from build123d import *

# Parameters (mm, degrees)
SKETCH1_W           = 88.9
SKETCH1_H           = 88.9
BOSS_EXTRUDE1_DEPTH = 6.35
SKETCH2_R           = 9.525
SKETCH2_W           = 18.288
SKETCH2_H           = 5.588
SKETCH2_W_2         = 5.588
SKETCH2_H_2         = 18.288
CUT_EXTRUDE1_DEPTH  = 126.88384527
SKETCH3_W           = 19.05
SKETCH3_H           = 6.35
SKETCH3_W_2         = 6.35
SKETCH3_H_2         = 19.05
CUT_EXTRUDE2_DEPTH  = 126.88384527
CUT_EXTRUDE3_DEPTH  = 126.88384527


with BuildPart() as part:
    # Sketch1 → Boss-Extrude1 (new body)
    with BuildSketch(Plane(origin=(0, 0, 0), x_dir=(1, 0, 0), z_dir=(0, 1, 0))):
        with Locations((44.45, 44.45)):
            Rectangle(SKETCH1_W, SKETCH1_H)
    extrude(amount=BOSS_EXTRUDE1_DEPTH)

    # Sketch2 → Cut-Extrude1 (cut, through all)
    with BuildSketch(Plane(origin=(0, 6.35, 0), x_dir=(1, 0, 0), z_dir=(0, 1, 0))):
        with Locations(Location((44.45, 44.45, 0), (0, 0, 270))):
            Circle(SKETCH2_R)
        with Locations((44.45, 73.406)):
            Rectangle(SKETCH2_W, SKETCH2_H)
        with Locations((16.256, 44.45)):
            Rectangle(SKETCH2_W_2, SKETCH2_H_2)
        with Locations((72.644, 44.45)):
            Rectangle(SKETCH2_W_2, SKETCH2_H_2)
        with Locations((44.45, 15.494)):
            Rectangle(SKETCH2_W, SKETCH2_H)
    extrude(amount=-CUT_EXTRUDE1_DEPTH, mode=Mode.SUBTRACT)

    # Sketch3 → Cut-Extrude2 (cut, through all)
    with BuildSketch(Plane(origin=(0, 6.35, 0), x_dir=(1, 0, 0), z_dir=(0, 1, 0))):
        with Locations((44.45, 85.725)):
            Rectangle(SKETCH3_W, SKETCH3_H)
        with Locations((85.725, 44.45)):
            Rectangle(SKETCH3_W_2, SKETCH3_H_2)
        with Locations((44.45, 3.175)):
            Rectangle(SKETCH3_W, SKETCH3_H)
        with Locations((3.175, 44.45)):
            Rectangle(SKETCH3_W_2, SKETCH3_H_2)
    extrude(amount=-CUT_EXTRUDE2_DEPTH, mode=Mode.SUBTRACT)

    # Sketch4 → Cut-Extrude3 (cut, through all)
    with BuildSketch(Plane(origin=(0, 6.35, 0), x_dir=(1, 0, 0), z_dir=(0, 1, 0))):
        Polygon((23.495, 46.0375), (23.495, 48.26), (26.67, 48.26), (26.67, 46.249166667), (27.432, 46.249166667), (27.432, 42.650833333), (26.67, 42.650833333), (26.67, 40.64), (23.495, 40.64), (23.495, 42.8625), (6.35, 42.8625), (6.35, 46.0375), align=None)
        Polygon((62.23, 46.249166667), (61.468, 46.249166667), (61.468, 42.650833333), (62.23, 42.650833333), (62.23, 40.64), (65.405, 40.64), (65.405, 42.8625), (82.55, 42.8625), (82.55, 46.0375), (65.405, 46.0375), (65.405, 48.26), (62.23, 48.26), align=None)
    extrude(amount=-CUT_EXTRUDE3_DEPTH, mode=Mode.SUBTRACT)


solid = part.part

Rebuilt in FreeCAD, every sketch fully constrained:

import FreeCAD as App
import Part
import Sketcher
from FreeCAD import Vector
Q = App.Units.Quantity


def add_polygon(sketch, points):
    """Adds a closed chain of lines whose ends are joined by coincident constraints."""
    first, n = sketch.GeometryCount, len(points)
    for a, b in zip(points, points[1:] + points[:1]):
        sketch.addGeometry(Part.LineSegment(App.Vector(*a, 0), App.Vector(*b, 0)), False)
    for i in range(n):
        sketch.addConstraint(Sketcher.Constraint("Coincident", first + i, 2, first + (i + 1) % n, 1))

doc = App.newDocument("Part")
body = doc.addObject("PartDesign::Body", "Body")

sketch1 = body.newObject("Sketcher::SketchObject", "Sketch")
sketch1.AttachmentSupport = (doc.getObject("XZ_Plane"), [""])
sketch1.MapMode = "FlatFace"
add_polygon(sketch1, [(0, -89), (0, 0), (89, 0), (89, -89)])
sketch1.addConstraint([
    Sketcher.Constraint("Vertical", 0),
    Sketcher.Constraint("Horizontal", 1),
    Sketcher.Constraint("Vertical", 2),
    Sketcher.Constraint("Horizontal", 3),
    Sketcher.Constraint("Coincident", 0, 2, -1, 1),
    Sketcher.Constraint("Equal", 3, 0),
    Sketcher.Constraint("DistanceX", 1, 1, 1, 2, Q("3.5 in")),
])
pad1 = body.newObject("PartDesign::Pad", "Pad")
pad1.Profile = sketch1
pad1.Length = Q("0.25 in")
pad1.Reversed = True

sketch2 = body.newObject("Sketcher::SketchObject", "Sketch001")
sketch2.AttachmentSupport = (doc.getObject("XZ_Plane"), [""])
sketch2.MapMode = "FlatFace"
sketch2.AttachmentOffset = App.Placement(Vector(0, 0, -0.25 * 25.4), App.Rotation())
sketch2.addGeometry(Part.Circle(Vector(44, -44, 0), Vector(0, 0, 1), 10), False)
add_polygon(sketch2, [(35, -76), (35, -71), (54, -71), (54, -76)])
add_polygon(sketch2, [(13, -54), (13, -35), (19, -35), (19, -54)])
add_polygon(sketch2, [(70, -54), (70, -35), (75, -35), (75, -54)])
add_polygon(sketch2, [(35, -18), (35, -13), (54, -13), (54, -18)])
sketch2.addConstraint([
    Sketcher.Constraint("Vertical", 1),
    Sketcher.Constraint("Horizontal", 2),
    Sketcher.Constraint("Vertical", 3),
    Sketcher.Constraint("Horizontal", 4),
    Sketcher.Constraint("Vertical", 5),
    Sketcher.Constraint("Horizontal", 6),
    Sketcher.Constraint("Vertical", 7),
    Sketcher.Constraint("Horizontal", 8),
    Sketcher.Constraint("Vertical", 9),
    Sketcher.Constraint("Horizontal", 10),
    Sketcher.Constraint("Vertical", 11),
    Sketcher.Constraint("Horizontal", 12),
    Sketcher.Constraint("Vertical", 13),
    Sketcher.Constraint("Horizontal", 14),
    Sketcher.Constraint("Vertical", 15),
    Sketcher.Constraint("Horizontal", 16),
    Sketcher.Constraint("Horizontal", 6, 2, 9, 2),
    Sketcher.Constraint("Horizontal", 8, 2, 11, 2),
    Sketcher.Constraint("Vertical", 4, 2, 13, 2),
    Sketcher.Constraint("Vertical", 3, 2, 14, 2),
    Sketcher.Constraint("Equal", 8, 10),
    Sketcher.Constraint("Equal", 12, 1),
    Sketcher.Constraint("Equal", 16, 5),
    Sketcher.Constraint("Equal", 3, 13),
    Sketcher.Constraint("Diameter", 0, Q("0.75 in")),
    Sketcher.Constraint("DistanceY", 3, 2, -1, 1, Q("3 in")),
    Sketcher.Constraint("DistanceX", 6, 2, 0, 3, Q("1 in")),
    Sketcher.Constraint("DistanceX", 0, 3, 9, 2, Q("1 in")),
    Sketcher.Constraint("DistanceX", 2, 1, 2, 2, Q("0.72 in")),
    Sketcher.Constraint("DistanceX", 6, 1, 6, 2, Q("0.22 in")),
    Sketcher.Constraint("DistanceY", 13, 2, -1, 1, Q("0.5 in")),
    Sketcher.Constraint("DistanceX", -1, 1, 0, 3, Q("1.75 in")),
    Sketcher.Constraint("DistanceY", 0, 3, -1, 1, Q("1.75 in")),
    Sketcher.Constraint("DistanceX", -1, 1, 1, 2, Q("1.39 in")),
    Sketcher.Constraint("DistanceY", 5, 2, -1, 1, Q("1.39 in")),
])
pocket1 = body.newObject("PartDesign::Pocket", "Pocket")
pocket1.Profile = sketch2
pocket1.Type = "ThroughAll"
pocket1.Reversed = True

sketch3 = body.newObject("Sketcher::SketchObject", "Sketch002")
sketch3.AttachmentSupport = (doc.getObject("XZ_Plane"), [""])
sketch3.MapMode = "FlatFace"
sketch3.AttachmentOffset = App.Placement(Vector(0, 0, -0.25 * 25.4), App.Rotation())
add_polygon(sketch3, [(35, -89), (35, -83), (54, -83), (54, -89)])
add_polygon(sketch3, [(83, -54), (83, -35), (89, -35), (89, -54)])
add_polygon(sketch3, [(35, -6), (35, 0), (54, 0), (54, -6)])
add_polygon(sketch3, [(0, -54), (0, -35), (6, -35), (6, -54)])
sketch3.addConstraint([
    Sketcher.Constraint("Vertical", 0),
    Sketcher.Constraint("Horizontal", 1),
    Sketcher.Constraint("Vertical", 2),
    Sketcher.Constraint("Horizontal", 3),
    Sketcher.Constraint("Vertical", 4),
    Sketcher.Constraint("Horizontal", 5),
    Sketcher.Constraint("Vertical", 6),
    Sketcher.Constraint("Horizontal", 7),
    Sketcher.Constraint("Vertical", 8),
    Sketcher.Constraint("Horizontal", 9),
    Sketcher.Constraint("Vertical", 10),
    Sketcher.Constraint("Horizontal", 11),
    Sketcher.Constraint("Vertical", 12),
    Sketcher.Constraint("Horizontal", 13),
    Sketcher.Constraint("Vertical", 14),
    Sketcher.Constraint("Horizontal", 15),
    Sketcher.Constraint("PointOnObject", 8, 2, -1),
    Sketcher.Constraint("PointOnObject", 12, 2, -2),
    Sketcher.Constraint("Horizontal", 5, 2, 12, 2),
    Sketcher.Constraint("Horizontal", 7, 2, 14, 2),
    Sketcher.Constraint("Vertical", 3, 2, 8, 2),
    Sketcher.Constraint("Vertical", 2, 2, 9, 2),
    Sketcher.Constraint("Equal", 7, 13),
    Sketcher.Constraint("Equal", 15, 0),
    Sketcher.Constraint("Equal", 11, 4),
    Sketcher.Constraint("Equal", 2, 8),
    Sketcher.Constraint("DistanceX", 1, 1, 1, 2, Q("0.75 in")),
    Sketcher.Constraint("DistanceX", 5, 1, 5, 2, Q("0.25 in")),
    Sketcher.Constraint("DistanceY", 2, 2, -1, 1, Q("3.5 in")),
    Sketcher.Constraint("DistanceX", -1, 1, 5, 2, Q("3.5 in")),
    Sketcher.Constraint("DistanceX", -1, 1, 0, 2, Q("1.375 in")),
    Sketcher.Constraint("DistanceY", 4, 2, -1, 1, Q("1.375 in")),
])
pocket2 = body.newObject("PartDesign::Pocket", "Pocket001")
pocket2.Profile = sketch3
pocket2.Type = "ThroughAll"
pocket2.Reversed = True

sketch4 = body.newObject("Sketcher::SketchObject", "Sketch003")
sketch4.AttachmentSupport = (doc.getObject("XZ_Plane"), [""])
sketch4.MapMode = "FlatFace"
sketch4.AttachmentOffset = App.Placement(Vector(0, 0, -0.25 * 25.4), App.Rotation())
add_polygon(sketch4, [(23.5, -48.3), (23.5, -46), (6.3, -46), (6.3, -42.9), (23.5, -42.9), (23.5, -40.6), (26.7, -40.6), (26.7, -42.7), (27.4, -42.7), (27.4, -46.2), (26.7, -46.2), (26.7, -48.3)])
add_polygon(sketch4, [(62.2, -46.2), (61.5, -46.2), (61.5, -42.7), (62.2, -42.7), (62.2, -40.6), (65.4, -40.6), (65.4, -42.9), (82.5, -42.9), (82.5, -46), (65.4, -46), (65.4, -48.3), (62.2, -48.3)])
sketch4.addConstraint([
    Sketcher.Constraint("Vertical", 0),
    Sketcher.Constraint("Horizontal", 1),
    Sketcher.Constraint("Vertical", 2),
    Sketcher.Constraint("Horizontal", 3),
    Sketcher.Constraint("Vertical", 4),
    Sketcher.Constraint("Horizontal", 5),
    Sketcher.Constraint("Vertical", 6),
    Sketcher.Constraint("Horizontal", 7),
    Sketcher.Constraint("Vertical", 8),
    Sketcher.Constraint("Horizontal", 9),
    Sketcher.Constraint("Vertical", 10),
    Sketcher.Constraint("Horizontal", 11),
    Sketcher.Constraint("Horizontal", 12),
    Sketcher.Constraint("Vertical", 13),
    Sketcher.Constraint("Horizontal", 14),
    Sketcher.Constraint("Vertical", 15),
    Sketcher.Constraint("Horizontal", 16),
    Sketcher.Constraint("Vertical", 17),
    Sketcher.Constraint("Horizontal", 18),
    Sketcher.Constraint("Vertical", 19),
    Sketcher.Constraint("Horizontal", 20),
    Sketcher.Constraint("Vertical", 21),
    Sketcher.Constraint("Horizontal", 22),
    Sketcher.Constraint("Vertical", 23),
    Sketcher.Constraint("Horizontal", 9, 2, 12, 2),
    Sketcher.Constraint("Horizontal", 7, 2, 13, 2),
    Sketcher.Constraint("Horizontal", 5, 2, 15, 2),
    Sketcher.Constraint("Horizontal", 3, 2, 17, 2),
    Sketcher.Constraint("Horizontal", 1, 2, 19, 2),
    Sketcher.Constraint("Horizontal", 11, 2, 21, 2),
    Sketcher.Constraint("Vertical", 0, 2, 3, 2),
    Sketcher.Constraint("Vertical", 6, 2, 9, 2),
    Sketcher.Constraint("Vertical", 17, 2, 20, 2),
    Sketcher.Constraint("Vertical", 15, 2, 22, 2),
    Sketcher.Constraint("Equal", 9, 12),
    Sketcher.Constraint("Equal", 11, 16),
    Sketcher.Constraint("Equal", 3, 18),
    Sketcher.Constraint("Equal", 22, 2),
    Sketcher.Constraint("Equal", 0, 4),
    Sketcher.Constraint("Equal", 6, 10),
    Sketcher.Constraint("DistanceX", 7, 1, 7, 2, Q("0.03 in")),
    Sketcher.Constraint("DistanceY", 4, 2, -1, 1, Q("1.6 in")),
    Sketcher.Constraint("DistanceY", 10, 2, -1, 1, Q("1.9 in")),
    Sketcher.Constraint("DistanceX", 2, 2, 5, 2, Q("0.8 in")),
    Sketcher.Constraint("DistanceX", 6, 2, 14, 2, Q("1.4 in")),
    Sketcher.Constraint("DistanceX", 1, 2, 1, 1, Q("0.675 in")),
    Sketcher.Constraint("DistanceX", -1, 1, 1, 2, Q("0.25 in")),
    Sketcher.Constraint("DistanceY", 6, 2, 6, 1, 2.010833),
])
pocket3 = body.newObject("PartDesign::Pocket", "Pocket002")
pocket3.Profile = sketch4
pocket3.Type = "ThroughAll"
pocket3.Reversed = True

doc.recompute()
